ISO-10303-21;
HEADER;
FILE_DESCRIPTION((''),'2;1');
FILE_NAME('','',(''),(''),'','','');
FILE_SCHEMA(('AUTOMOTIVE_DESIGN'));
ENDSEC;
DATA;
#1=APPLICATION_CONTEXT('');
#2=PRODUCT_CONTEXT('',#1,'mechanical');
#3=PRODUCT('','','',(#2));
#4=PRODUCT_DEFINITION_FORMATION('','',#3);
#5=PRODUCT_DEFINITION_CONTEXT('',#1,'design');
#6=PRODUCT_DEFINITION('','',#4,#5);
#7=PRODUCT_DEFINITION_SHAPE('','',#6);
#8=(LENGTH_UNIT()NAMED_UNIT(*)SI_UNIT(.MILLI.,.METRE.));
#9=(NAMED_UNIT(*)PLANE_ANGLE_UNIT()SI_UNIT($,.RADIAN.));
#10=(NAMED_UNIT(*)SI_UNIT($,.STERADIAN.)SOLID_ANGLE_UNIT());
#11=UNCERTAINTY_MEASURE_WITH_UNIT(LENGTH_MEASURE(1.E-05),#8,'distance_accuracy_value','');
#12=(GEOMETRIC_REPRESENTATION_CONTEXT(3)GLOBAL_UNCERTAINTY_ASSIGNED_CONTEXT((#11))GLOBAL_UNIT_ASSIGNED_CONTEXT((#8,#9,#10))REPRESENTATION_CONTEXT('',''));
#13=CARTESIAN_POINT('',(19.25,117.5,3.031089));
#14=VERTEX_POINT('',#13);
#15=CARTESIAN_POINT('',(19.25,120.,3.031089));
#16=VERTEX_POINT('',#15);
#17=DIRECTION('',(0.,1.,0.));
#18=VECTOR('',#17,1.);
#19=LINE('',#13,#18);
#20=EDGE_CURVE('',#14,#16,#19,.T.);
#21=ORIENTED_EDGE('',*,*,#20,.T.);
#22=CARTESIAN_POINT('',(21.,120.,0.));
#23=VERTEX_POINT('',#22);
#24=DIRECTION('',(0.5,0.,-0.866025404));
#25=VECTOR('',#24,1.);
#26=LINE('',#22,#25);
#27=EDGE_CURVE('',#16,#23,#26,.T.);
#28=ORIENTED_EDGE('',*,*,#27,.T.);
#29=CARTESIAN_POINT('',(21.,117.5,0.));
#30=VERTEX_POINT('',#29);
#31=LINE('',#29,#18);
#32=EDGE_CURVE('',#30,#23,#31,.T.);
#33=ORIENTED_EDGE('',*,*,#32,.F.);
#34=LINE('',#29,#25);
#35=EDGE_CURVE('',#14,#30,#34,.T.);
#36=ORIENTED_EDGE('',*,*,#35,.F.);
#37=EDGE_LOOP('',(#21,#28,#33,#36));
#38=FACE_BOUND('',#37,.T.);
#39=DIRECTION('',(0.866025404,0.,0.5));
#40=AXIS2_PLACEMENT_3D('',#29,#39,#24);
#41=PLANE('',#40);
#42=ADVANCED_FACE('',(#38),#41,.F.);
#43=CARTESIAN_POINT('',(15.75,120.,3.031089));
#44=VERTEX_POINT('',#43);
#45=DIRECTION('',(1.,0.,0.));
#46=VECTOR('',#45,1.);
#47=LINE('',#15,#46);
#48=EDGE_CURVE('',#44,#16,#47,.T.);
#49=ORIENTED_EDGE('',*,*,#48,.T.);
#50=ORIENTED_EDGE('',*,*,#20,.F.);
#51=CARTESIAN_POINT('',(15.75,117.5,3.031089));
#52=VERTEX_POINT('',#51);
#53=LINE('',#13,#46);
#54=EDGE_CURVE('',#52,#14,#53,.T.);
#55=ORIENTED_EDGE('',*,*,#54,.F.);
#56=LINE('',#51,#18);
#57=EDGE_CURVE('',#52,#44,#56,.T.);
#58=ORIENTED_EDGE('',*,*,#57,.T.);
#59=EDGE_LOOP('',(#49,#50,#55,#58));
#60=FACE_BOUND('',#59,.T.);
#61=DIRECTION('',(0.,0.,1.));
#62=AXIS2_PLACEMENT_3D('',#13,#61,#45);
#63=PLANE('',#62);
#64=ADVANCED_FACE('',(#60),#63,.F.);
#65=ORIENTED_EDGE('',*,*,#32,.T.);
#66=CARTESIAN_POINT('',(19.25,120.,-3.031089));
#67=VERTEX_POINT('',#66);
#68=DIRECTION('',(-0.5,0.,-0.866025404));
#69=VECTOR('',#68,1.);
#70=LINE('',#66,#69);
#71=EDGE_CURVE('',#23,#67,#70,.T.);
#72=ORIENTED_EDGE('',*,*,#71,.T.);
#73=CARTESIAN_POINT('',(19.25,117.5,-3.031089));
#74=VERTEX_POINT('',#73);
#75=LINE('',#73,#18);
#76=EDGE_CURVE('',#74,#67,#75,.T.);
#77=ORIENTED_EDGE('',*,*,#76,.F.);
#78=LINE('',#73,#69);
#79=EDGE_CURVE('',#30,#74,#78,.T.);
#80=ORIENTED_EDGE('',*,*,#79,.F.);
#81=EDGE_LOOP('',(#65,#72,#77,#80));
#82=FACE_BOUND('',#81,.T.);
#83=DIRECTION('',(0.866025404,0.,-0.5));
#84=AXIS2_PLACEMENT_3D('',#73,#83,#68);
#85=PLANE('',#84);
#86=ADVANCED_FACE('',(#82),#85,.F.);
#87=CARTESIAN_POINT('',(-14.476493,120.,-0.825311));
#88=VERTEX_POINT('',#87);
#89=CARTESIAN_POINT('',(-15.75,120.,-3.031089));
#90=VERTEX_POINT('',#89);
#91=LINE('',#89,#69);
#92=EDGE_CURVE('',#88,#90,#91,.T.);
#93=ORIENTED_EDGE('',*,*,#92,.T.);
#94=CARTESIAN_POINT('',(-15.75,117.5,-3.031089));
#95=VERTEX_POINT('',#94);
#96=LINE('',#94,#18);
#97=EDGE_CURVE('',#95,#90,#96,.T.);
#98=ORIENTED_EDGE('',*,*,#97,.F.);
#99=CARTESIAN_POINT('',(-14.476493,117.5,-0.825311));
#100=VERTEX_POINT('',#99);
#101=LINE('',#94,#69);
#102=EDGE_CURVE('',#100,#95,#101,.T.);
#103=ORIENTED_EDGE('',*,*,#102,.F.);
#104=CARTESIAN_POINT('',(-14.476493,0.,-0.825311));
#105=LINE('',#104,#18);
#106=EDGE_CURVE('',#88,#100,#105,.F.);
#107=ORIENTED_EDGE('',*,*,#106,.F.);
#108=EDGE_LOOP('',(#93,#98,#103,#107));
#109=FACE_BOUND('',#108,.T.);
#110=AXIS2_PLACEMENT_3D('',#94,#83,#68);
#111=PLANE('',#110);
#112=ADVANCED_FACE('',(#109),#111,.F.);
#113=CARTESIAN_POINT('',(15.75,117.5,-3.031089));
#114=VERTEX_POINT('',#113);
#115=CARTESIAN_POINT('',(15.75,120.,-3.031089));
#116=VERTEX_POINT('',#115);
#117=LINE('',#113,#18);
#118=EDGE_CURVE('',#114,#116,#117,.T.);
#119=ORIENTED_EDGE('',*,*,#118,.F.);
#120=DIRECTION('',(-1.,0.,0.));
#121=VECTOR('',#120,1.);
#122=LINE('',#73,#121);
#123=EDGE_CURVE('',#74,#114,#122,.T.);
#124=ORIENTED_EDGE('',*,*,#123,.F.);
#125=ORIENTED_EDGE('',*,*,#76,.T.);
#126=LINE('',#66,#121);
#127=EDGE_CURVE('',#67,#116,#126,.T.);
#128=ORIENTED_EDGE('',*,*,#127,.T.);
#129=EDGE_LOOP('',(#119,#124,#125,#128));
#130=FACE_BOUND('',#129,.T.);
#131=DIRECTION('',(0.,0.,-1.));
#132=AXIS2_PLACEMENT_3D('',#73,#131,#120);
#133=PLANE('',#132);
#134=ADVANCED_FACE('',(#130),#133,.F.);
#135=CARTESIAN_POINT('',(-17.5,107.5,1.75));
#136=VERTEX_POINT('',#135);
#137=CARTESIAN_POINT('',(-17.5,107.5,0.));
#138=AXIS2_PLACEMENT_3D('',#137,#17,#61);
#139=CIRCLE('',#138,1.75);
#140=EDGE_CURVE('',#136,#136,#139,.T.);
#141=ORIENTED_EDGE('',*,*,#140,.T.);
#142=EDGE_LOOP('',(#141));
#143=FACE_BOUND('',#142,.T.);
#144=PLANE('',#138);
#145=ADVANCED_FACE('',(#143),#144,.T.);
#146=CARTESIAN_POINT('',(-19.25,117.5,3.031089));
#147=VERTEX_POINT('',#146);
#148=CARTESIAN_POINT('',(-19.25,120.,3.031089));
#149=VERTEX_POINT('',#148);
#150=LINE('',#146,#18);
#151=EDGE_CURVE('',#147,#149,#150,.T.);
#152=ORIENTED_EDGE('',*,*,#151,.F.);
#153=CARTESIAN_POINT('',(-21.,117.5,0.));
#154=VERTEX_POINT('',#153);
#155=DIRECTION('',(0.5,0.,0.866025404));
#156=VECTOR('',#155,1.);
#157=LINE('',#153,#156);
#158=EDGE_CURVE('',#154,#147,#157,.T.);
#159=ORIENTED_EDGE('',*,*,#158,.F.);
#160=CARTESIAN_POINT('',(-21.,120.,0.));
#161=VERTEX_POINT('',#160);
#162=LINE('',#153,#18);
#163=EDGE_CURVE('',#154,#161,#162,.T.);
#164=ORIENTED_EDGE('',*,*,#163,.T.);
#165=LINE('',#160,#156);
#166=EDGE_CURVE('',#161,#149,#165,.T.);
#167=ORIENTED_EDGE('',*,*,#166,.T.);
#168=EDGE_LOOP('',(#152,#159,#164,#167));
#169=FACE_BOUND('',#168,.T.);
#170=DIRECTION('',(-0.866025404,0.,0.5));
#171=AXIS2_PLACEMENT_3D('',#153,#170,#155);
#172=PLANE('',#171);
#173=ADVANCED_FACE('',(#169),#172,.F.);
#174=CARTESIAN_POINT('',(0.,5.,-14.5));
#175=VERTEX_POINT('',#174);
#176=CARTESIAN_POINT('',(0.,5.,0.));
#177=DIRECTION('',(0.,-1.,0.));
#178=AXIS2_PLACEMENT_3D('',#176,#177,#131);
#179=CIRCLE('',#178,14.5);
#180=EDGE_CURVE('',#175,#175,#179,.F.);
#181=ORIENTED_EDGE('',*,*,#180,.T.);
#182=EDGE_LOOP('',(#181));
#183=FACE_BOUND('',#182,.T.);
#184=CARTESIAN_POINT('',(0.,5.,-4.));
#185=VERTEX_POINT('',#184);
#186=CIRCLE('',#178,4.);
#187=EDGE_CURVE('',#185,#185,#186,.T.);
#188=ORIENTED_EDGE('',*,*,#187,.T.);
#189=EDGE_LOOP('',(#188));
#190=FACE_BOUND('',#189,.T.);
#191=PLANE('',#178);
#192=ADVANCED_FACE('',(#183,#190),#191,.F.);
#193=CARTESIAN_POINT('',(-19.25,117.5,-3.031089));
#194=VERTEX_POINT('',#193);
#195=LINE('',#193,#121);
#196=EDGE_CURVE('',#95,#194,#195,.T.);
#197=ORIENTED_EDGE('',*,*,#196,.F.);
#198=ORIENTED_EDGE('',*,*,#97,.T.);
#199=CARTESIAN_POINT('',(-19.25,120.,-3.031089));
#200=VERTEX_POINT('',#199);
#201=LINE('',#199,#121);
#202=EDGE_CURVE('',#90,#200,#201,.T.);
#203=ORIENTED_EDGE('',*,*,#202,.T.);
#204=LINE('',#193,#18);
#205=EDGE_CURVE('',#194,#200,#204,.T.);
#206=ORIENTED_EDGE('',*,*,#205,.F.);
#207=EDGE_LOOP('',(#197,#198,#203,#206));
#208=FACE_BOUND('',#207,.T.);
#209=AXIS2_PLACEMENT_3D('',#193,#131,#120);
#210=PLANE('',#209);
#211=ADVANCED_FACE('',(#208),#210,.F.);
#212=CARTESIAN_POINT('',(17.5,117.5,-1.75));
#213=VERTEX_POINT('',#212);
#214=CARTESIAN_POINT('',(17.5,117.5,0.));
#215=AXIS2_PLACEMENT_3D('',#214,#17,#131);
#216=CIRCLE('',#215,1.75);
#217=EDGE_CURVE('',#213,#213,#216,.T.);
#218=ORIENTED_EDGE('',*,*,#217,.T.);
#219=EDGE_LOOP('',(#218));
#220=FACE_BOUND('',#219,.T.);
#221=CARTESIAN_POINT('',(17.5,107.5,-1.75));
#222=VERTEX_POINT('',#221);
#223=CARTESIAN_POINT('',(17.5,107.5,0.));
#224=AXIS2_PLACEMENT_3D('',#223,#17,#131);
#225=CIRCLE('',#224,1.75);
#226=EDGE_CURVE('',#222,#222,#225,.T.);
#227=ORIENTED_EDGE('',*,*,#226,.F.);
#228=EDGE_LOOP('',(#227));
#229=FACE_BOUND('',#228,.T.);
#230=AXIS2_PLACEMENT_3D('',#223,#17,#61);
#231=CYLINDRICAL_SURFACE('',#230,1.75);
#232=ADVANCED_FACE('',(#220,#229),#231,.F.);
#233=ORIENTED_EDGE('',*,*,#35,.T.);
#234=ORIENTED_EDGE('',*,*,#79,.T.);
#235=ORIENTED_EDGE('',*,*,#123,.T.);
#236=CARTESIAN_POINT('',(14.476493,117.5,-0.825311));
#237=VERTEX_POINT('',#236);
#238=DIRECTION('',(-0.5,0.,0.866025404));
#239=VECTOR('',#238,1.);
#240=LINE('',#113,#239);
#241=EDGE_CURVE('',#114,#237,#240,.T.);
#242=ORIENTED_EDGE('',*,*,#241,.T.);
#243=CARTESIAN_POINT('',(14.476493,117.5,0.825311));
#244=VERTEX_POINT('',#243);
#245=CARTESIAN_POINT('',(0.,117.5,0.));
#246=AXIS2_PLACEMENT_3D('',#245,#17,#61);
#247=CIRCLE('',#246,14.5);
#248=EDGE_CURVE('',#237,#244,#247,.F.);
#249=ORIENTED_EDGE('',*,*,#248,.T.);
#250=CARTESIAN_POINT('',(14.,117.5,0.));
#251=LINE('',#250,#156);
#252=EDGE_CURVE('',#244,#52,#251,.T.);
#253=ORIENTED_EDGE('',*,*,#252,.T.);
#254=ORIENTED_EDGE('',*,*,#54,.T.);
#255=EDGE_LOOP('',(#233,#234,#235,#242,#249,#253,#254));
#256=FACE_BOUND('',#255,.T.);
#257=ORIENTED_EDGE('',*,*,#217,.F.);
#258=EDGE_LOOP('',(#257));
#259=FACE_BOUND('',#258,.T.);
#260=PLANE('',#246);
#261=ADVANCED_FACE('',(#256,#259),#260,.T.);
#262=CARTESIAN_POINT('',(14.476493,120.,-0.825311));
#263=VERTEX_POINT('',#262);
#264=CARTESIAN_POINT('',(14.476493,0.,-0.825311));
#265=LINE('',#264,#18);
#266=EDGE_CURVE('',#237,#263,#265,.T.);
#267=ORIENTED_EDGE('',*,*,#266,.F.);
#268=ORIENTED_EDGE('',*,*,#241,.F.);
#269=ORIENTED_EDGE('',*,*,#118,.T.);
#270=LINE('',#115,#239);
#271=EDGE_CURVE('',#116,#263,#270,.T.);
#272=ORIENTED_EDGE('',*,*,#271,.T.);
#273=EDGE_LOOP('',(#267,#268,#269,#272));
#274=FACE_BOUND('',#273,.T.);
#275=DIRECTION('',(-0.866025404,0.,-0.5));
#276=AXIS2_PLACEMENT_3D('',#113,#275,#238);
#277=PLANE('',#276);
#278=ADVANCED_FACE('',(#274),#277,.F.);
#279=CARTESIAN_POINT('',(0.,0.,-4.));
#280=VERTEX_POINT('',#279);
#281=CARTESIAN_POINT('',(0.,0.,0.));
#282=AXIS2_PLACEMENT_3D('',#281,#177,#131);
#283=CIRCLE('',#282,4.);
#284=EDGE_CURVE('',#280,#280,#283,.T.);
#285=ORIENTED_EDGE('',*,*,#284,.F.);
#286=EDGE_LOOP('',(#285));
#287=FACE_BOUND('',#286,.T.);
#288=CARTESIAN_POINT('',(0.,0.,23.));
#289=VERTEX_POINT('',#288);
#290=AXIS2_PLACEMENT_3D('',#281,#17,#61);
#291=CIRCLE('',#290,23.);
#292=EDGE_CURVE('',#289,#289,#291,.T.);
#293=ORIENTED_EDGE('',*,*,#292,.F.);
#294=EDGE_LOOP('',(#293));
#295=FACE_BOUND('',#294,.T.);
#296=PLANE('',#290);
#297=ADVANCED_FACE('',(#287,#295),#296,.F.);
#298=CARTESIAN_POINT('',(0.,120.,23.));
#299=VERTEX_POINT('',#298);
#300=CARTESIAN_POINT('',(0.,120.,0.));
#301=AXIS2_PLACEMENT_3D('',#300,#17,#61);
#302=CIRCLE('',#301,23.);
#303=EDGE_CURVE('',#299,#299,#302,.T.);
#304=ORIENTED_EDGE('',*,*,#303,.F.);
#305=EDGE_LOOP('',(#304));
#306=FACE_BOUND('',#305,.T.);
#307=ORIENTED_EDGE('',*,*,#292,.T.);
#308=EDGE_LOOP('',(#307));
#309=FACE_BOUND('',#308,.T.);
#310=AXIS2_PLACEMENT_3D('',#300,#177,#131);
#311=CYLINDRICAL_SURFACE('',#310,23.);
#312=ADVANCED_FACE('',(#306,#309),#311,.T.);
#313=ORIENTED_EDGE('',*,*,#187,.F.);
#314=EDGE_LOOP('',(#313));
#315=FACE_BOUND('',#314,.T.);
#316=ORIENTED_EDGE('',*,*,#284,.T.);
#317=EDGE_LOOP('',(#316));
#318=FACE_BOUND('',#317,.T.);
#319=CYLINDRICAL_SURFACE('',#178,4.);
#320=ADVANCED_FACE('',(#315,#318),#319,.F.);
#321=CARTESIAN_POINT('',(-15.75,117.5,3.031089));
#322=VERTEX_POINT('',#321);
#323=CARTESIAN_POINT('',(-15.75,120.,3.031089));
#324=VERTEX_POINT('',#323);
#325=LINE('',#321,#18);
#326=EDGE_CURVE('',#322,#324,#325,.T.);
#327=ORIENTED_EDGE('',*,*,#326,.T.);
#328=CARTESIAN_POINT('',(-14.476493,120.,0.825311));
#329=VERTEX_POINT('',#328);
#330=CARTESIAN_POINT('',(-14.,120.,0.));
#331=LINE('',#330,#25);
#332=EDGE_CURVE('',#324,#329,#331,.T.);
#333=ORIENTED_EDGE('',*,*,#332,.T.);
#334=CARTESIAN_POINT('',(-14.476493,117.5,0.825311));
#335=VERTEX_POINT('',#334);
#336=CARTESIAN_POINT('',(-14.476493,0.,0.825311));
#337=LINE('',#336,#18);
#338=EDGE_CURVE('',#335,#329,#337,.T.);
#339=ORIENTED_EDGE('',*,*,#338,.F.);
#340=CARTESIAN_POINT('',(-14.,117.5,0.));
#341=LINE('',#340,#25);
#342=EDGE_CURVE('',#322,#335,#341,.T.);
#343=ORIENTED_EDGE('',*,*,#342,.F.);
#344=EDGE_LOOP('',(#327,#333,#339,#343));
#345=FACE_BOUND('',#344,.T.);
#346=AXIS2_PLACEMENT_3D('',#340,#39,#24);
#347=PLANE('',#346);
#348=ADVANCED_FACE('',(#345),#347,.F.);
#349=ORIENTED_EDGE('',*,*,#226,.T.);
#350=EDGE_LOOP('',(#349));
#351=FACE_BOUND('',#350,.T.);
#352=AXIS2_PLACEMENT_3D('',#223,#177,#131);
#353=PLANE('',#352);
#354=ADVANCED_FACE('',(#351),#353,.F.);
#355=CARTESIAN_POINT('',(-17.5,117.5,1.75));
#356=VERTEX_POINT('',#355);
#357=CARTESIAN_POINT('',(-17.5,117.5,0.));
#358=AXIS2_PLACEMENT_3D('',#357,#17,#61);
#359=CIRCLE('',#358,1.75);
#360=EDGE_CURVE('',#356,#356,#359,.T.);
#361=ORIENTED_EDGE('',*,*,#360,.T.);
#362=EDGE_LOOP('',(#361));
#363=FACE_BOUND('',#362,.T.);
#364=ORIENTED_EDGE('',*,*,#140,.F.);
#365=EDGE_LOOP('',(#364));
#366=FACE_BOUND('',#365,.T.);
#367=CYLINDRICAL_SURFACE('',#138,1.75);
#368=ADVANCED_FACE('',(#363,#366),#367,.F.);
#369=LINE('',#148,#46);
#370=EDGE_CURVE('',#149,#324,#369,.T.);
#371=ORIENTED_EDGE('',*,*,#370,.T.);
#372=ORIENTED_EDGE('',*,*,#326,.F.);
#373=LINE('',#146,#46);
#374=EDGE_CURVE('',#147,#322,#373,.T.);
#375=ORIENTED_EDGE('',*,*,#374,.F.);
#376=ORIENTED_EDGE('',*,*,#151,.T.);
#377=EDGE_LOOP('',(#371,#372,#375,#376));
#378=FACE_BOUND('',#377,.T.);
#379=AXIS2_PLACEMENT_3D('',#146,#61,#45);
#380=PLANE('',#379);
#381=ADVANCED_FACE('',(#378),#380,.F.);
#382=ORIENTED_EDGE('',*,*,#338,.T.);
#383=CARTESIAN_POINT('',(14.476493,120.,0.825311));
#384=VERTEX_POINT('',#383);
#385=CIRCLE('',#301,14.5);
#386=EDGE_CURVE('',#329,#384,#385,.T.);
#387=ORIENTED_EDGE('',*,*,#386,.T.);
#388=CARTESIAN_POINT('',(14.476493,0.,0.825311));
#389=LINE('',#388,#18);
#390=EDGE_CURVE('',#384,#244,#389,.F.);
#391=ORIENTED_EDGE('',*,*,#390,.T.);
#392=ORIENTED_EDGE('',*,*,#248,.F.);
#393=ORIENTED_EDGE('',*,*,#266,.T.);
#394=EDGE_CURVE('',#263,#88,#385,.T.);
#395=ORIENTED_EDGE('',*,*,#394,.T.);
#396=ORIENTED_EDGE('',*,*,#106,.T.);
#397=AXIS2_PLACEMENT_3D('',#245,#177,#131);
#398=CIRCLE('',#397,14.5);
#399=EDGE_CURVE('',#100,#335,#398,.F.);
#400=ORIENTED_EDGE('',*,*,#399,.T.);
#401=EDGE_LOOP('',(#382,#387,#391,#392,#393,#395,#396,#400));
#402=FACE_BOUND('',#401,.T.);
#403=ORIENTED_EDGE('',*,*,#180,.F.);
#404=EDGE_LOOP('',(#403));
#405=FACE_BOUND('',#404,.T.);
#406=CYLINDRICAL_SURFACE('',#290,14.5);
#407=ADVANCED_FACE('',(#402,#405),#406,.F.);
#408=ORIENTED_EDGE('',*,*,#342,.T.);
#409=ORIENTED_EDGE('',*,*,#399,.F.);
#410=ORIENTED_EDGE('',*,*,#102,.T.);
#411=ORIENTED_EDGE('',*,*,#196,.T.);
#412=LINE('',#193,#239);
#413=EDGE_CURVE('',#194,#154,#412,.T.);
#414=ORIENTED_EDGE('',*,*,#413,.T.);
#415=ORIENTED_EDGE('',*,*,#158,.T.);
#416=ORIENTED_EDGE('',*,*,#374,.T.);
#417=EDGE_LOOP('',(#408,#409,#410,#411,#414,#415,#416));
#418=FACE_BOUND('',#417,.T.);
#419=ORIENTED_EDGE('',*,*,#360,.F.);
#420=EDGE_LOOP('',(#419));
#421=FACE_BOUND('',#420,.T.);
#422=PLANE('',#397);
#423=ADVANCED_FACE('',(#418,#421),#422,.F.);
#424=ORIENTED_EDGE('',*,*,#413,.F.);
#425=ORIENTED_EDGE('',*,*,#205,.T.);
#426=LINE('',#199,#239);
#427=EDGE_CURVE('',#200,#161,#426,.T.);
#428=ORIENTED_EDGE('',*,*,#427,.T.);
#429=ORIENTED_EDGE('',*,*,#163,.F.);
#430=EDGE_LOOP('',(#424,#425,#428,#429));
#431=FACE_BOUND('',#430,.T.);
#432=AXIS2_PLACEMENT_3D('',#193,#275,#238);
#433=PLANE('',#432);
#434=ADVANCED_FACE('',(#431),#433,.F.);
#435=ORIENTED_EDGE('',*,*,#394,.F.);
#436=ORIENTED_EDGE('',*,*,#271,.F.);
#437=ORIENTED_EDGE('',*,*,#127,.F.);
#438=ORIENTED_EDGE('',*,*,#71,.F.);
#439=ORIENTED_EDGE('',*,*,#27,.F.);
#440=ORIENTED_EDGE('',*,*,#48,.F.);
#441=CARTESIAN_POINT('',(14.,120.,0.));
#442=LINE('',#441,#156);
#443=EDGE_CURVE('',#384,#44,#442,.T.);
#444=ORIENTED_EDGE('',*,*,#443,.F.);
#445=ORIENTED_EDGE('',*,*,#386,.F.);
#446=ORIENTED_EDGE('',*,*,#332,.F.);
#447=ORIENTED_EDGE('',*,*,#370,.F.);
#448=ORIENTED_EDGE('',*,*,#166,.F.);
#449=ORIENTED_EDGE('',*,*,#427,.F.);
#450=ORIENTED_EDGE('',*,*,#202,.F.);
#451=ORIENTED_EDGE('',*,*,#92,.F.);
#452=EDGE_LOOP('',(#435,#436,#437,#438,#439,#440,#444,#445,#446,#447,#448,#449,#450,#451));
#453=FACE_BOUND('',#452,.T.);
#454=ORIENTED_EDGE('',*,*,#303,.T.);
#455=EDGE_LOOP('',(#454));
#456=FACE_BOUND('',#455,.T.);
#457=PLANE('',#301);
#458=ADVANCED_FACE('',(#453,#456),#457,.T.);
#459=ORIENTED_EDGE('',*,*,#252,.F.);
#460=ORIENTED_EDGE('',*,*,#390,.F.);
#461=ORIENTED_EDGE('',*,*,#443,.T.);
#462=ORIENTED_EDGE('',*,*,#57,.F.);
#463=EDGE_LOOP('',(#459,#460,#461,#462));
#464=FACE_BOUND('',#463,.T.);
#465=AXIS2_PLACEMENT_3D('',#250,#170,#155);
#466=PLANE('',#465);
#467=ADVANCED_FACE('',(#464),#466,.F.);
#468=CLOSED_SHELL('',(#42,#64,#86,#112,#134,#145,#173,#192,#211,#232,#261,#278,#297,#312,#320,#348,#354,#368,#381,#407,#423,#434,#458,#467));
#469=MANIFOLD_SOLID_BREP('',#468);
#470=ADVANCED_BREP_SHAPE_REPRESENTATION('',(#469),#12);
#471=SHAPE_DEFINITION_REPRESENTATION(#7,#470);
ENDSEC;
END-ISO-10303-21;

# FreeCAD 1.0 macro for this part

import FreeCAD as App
import Part
import Sketcher
from FreeCAD import Vector
Q = App.Units.Quantity


def add_polygon(sketch, points):
    """Adds a closed chain of lines whose ends are joined by coincident constraints."""
    first, n = sketch.GeometryCount, len(points)
    for a, b in zip(points, points[1:] + points[:1]):
        sketch.addGeometry(Part.LineSegment(App.Vector(*a, 0), App.Vector(*b, 0)), False)
    for i in range(n):
        sketch.addConstraint(Sketcher.Constraint("Coincident", first + i, 2, first + (i + 1) % n, 1))

doc = App.newDocument("Part")
body = doc.addObject("PartDesign::Body", "Body")

# Sketch on XZ plane
sketch1 = body.newObject("Sketcher::SketchObject", "Sketch")
sketch1.AttachmentSupport = (doc.getObject("XZ_Plane"), [""])
sketch1.MapMode = "FlatFace"
sketch1.addGeometry(Part.Circle(Vector(0, 0, 0), Vector(0, 0, 1), 23), False)
sketch1.addConstraint([
    Sketcher.Constraint("Coincident", 0, 3, -1, 1),
    Sketcher.Constraint("Diameter", 0, Q("46 mm")),
])
pad1 = body.newObject("PartDesign::Pad", "Pad")
pad1.Profile = sketch1
pad1.Length = 120
pad1.Reversed = True

# Sketch on XZ plane
sketch2 = body.newObject("Sketcher::SketchObject", "Sketch001")
sketch2.AttachmentSupport = (doc.getObject("XZ_Plane"), [""])
sketch2.MapMode = "FlatFace"
sketch2.AttachmentOffset = App.Placement(Vector(0, 0, -120), App.Rotation())
sketch2.addGeometry(Part.Circle(Vector(0, 0, 0), Vector(0, 0, 1), 14), False)
sketch2.addConstraint([
    Sketcher.Constraint("Coincident", 0, 3, -1, 1),
    Sketcher.Constraint("Diameter", 0, Q("29 mm")),
])
pocket1 = body.newObject("PartDesign::Pocket", "Pocket")
pocket1.Profile = sketch2
pocket1.Length = 120
pocket1.Reversed = True

# Sketch on XZ plane
sketch3 = body.newObject("Sketcher::SketchObject", "Sketch002")
sketch3.AttachmentSupport = (doc.getObject("XZ_Plane"), [""])
sketch3.MapMode = "FlatFace"
sketch3.AttachmentOffset = App.Placement(Vector(0, 0, -120), App.Rotation())
add_polygon(sketch3, [(-15.8, 3), (-14, 0), (-15.8, -3), (-19.2, -3), (-21, 0), (-19.2, 3)])  # lines 0-5
add_polygon(sketch3, [(19.2, -3), (15.8, -3), (14, 0), (15.8, 3), (19.2, 3), (21, 0)])  # lines 6-11
sketch3.addConstraint([
    Sketcher.Constraint("Horizontal", 2),
    Sketcher.Constraint("Horizontal", 5),
    Sketcher.Constraint("Horizontal", 6),
    Sketcher.Constraint("Horizontal", 9),
    Sketcher.Constraint("Symmetric", 5, 2, 6, 2, -1, 1),
    Sketcher.Constraint("Symmetric", 0, 2, 7, 2, -1, 1),
    Sketcher.Constraint("Symmetric", 1, 2, 8, 2, -1, 1),
    Sketcher.Constraint("Symmetric", 3, 2, 10, 2, -1, 1),
    Sketcher.Constraint("Symmetric", 1, 2, 6, 2, -2),
    Sketcher.Constraint("PointOnObject", 0, 2, -1),
    Sketcher.Constraint("PointOnObject", 3, 2, -1),
    Sketcher.Constraint("Parallel", 0, 3),
    Sketcher.Constraint("Parallel", 1, 4),
    Sketcher.Constraint("Parallel", 7, 10),
    Sketcher.Constraint("Parallel", 8, 11),
    Sketcher.Constraint("Angle", 0, Q("-60 deg")),
    Sketcher.Constraint("DistanceX", 2, 2, 2, 1, Q("3.5 mm")),
    Sketcher.Constraint("DistanceX", 0, 2, -1, 1, Q("14 mm")),
    Sketcher.Constraint("DistanceX", 3, 2, -1, 1, Q("21 mm")),
])
pocket2 = body.newObject("PartDesign::Pocket", "Pocket001")
pocket2.Profile = sketch3
pocket2.Length = 2.5
pocket2.Reversed = True

# Sketch on XZ plane
sketch4 = body.newObject("Sketcher::SketchObject", "Sketch003")
sketch4.AttachmentSupport = (doc.getObject("XZ_Plane"), [""])
sketch4.MapMode = "FlatFace"
sketch4.AttachmentOffset = App.Placement(Vector(0, 0, -117.5), App.Rotation())
sketch4.addGeometry([
    Part.Circle(Vector(-17.5, 0, 0), Vector(0, 0, 1), 1.8),
    Part.Circle(Vector(17.5, 0, 0), Vector(0, 0, 1), 1.8),
], False)
sketch4.addConstraint([
    Sketcher.Constraint("Equal", 0, 1),
    Sketcher.Constraint("Symmetric", 0, 3, 1, 3, -1, 1),
    Sketcher.Constraint("PointOnObject", 0, 3, -1),
    Sketcher.Constraint("Diameter", 0, Q("3.5 mm")),
    Sketcher.Constraint("DistanceX", 0, 3, 1, 3, Q("35 mm")),
])
pocket3 = body.newObject("PartDesign::Pocket", "Pocket002")
pocket3.Profile = sketch4
pocket3.Length = 10
pocket3.Reversed = True

# Sketch on XZ plane
sketch5 = body.newObject("Sketcher::SketchObject", "Sketch004")
sketch5.AttachmentSupport = (doc.getObject("XZ_Plane"), [""])
sketch5.MapMode = "FlatFace"
sketch5.AttachmentOffset = App.Placement(Vector(0, 0, -5), App.Rotation())
sketch5.addGeometry(Part.Circle(Vector(0, 0, 0), Vector(0, 0, 1), 14), False)
sketch5.addConstraint([
    Sketcher.Constraint("Coincident", 0, 3, -1, 1),
    Sketcher.Constraint("Diameter", 0, Q("29 mm")),
])
pad2 = body.newObject("PartDesign::Pad", "Pad001")
pad2.Profile = sketch5
pad2.Length = 5

# Sketch on XZ plane
sketch6 = body.newObject("Sketcher::SketchObject", "Sketch005")
sketch6.AttachmentSupport = (doc.getObject("XZ_Plane"), [""])
sketch6.MapMode = "FlatFace"
sketch6.addGeometry(Part.Circle(Vector(0, 0, 0), Vector(0, 0, 1), 4), False)
sketch6.addConstraint([
    Sketcher.Constraint("Coincident", 0, 3, -1, 1),
    Sketcher.Constraint("Diameter", 0, Q("8 mm")),
])
pocket4 = body.newObject("PartDesign::Pocket", "Pocket003")
pocket4.Profile = sketch6
pocket4.Length = 5

doc.recompute()
